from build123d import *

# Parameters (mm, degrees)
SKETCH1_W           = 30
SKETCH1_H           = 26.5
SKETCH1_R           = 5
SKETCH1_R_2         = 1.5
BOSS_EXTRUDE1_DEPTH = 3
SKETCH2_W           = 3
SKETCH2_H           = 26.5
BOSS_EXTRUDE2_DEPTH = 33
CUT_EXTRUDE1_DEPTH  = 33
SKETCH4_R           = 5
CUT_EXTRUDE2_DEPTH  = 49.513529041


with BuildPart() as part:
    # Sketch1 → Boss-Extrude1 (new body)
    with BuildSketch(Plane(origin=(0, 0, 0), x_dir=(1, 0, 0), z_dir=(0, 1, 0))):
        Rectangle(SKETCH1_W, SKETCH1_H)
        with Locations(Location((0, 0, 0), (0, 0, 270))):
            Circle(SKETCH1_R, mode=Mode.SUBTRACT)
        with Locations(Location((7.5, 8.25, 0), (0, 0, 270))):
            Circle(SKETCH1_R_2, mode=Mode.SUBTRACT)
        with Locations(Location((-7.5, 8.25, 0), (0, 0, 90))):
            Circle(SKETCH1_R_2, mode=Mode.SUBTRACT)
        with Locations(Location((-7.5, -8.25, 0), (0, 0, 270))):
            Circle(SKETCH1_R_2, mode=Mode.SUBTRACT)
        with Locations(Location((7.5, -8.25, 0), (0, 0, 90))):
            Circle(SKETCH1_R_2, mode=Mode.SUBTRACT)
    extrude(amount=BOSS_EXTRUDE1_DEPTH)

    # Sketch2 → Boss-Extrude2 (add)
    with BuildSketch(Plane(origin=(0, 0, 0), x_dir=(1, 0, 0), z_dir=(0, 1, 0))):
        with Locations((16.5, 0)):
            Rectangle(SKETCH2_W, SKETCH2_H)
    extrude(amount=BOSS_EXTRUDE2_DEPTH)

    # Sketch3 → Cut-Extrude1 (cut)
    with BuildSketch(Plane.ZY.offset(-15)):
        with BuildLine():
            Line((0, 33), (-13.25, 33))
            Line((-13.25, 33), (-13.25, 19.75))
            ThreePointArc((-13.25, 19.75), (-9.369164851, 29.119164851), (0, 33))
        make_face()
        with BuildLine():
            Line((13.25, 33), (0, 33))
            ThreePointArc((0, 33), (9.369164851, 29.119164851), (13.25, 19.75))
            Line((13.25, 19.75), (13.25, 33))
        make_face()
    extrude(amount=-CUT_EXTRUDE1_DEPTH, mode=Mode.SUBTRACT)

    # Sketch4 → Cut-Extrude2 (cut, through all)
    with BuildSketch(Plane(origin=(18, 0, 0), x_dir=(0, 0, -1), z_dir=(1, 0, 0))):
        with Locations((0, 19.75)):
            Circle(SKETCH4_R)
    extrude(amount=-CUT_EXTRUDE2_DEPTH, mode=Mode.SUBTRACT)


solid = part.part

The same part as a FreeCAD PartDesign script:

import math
import FreeCAD as App
import Part
import Sketcher

V = App.Vector
Q = App.Units.Quantity


def add_polygon(sketch, points):
    """Adds a closed chain of lines whose ends are joined by coincident constraints."""
    first, n = sketch.GeometryCount, len(points)
    for a, b in zip(points, points[1:] + points[:1]):
        sketch.addGeometry(Part.LineSegment(App.Vector(*a, 0), App.Vector(*b, 0)), False)
    for i in range(n):
        sketch.addConstraint(Sketcher.Constraint("Coincident", first + i, 2, first + (i + 1) % n, 1))

doc = App.newDocument("Part")
body = doc.addObject("PartDesign::Body", "Body")

sketch1 = doc.addObject("Sketcher::SketchObject", "Sketch")
body.addObject(sketch1)
sketch1.AttachmentSupport = (doc.XZ_Plane, [""])
sketch1.MapMode = "FlatFace"
add_polygon(sketch1, [(-15, -13.2), (-15, 13.2), (15, 13.2), (15, -13.2)])
sketch1.addGeometry(Part.Circle(V(-7.5, 8.2, 0), V(0, 0, 1), 1.5), False)
sketch1.addGeometry(Part.Circle(V(7.5, 8.2, 0), V(0, 0, 1), 1.5), False)
sketch1.addGeometry(Part.Circle(V(-7.5, -8.2, 0), V(0, 0, 1), 1.5), False)
sketch1.addGeometry(Part.Circle(V(0, 0, 0), V(0, 0, 1), 5), False)
sketch1.addGeometry(Part.Circle(V(7.5, -8.2, 0), V(0, 0, 1), 1.5), False)
sketch1.addConstraint(Sketcher.Constraint("Vertical", 0))
sketch1.addConstraint(Sketcher.Constraint("Horizontal", 1))
sketch1.addConstraint(Sketcher.Constraint("Vertical", 2))
sketch1.addConstraint(Sketcher.Constraint("Horizontal", 3))
sketch1.addConstraint(Sketcher.Constraint("Coincident", 7, 3, -1, 1))
sketch1.addConstraint(Sketcher.Constraint("Equal", 4, 5))
sketch1.addConstraint(Sketcher.Constraint("Equal", 5, 6))
sketch1.addConstraint(Sketcher.Constraint("Equal", 6, 8))
sketch1.addConstraint(Sketcher.Constraint("Symmetric", 5, 3, 6, 3, -1, 1))
sketch1.addConstraint(Sketcher.Constraint("Symmetric", 4, 3, 8, 3, -1, 1))
sketch1.addConstraint(Sketcher.Constraint("Symmetric", 0, 2, 2, 2, -1, 1))
sketch1.addConstraint(Sketcher.Constraint("Symmetric", 4, 3, 5, 3, -2))
sketch1.addConstraint(Sketcher.Constraint("Diameter", 4, Q("3 mm")))
sketch1.addConstraint(Sketcher.Constraint("Diameter", 7, Q("10 mm")))
sketch1.addConstraint(Sketcher.Constraint("DistanceX", 1, 1, 1, 2, Q("30 mm")))
sketch1.addConstraint(Sketcher.Constraint("DistanceY", 0, 1, 0, 2, Q("26.5 mm")))
sketch1.addConstraint(Sketcher.Constraint("DistanceX", 4, 3, 5, 3, Q("15 mm")))
sketch1.addConstraint(Sketcher.Constraint("DistanceY", 4, 3, 0, 2, Q("5 mm")))
pad1 = doc.addObject("PartDesign::Pad", "Pad")
body.addObject(pad1)
pad1.Profile = sketch1
pad1.Length = 3
pad1.Reversed = True

sketch2 = doc.addObject("Sketcher::SketchObject", "Sketch001")
body.addObject(sketch2)
sketch2.AttachmentSupport = (doc.XZ_Plane, [""])
sketch2.MapMode = "FlatFace"
add_polygon(sketch2, [(15, -13.2), (15, 13.2), (18, 13.2), (18, -13.2)])
sketch2.addConstraint(Sketcher.Constraint("Vertical", 0))
sketch2.addConstraint(Sketcher.Constraint("Horizontal", 1))
sketch2.addConstraint(Sketcher.Constraint("Vertical", 2))
sketch2.addConstraint(Sketcher.Constraint("Horizontal", 3))
sketch2.addConstraint(Sketcher.Constraint("DistanceX", 1, 1, 1, 2, Q("3 mm")))
sketch2.addConstraint(Sketcher.Constraint("DistanceY", 0, 1, 0, 2, Q("26.5 mm")))
sketch2.addConstraint(Sketcher.Constraint("DistanceX", -1, 1, 0, 2, Q("15 mm")))
sketch2.addConstraint(Sketcher.Constraint("DistanceY", -1, 1, 0, 2, Q("13.25 mm")))
pad2 = doc.addObject("PartDesign::Pad", "Pad001")
body.addObject(pad2)
pad2.Profile = sketch2
pad2.Length = 33
pad2.Reversed = True

sketch3 = doc.addObject("Sketcher::SketchObject", "Sketch002")
body.addObject(sketch3)
sketch3.AttachmentSupport = (doc.YZ_Plane, [""])
sketch3.MapMode = "FlatFace"
sketch3.AttachmentOffset = App.Placement(V(0, 0, 15), App.Rotation())
sketch3.addGeometry(Part.LineSegment(V(33, 0, 0), V(33, -13, 0)), False)
sketch3.addGeometry(Part.LineSegment(V(33, -13, 0), V(20, -13, 0)), False)
sketch3.addGeometry(Part.ArcOfCircle(Part.Circle(V(20, 0, 0), V(0, 0, 1), 13), math.radians(-90), math.radians(0)), False)
sketch3.addGeometry(Part.LineSegment(V(33, 13, 0), V(33, 0, 0)), False)
sketch3.addGeometry(Part.ArcOfCircle(Part.Circle(V(20, 0, 0), V(0, 0, 1), 13), math.radians(0), math.radians(90)), False)
sketch3.addGeometry(Part.LineSegment(V(20, 13, 0), V(33, 13, 0)), False)
sketch3.addConstraint(Sketcher.Constraint("Coincident", 0, 2, 1, 1))
sketch3.addConstraint(Sketcher.Constraint("Tangent", 1, 2, 2, 1))
sketch3.addConstraint(Sketcher.Constraint("Tangent", 2, 2, 0, 1))
sketch3.addConstraint(Sketcher.Constraint("Tangent", 3, 2, 4, 1))
sketch3.addConstraint(Sketcher.Constraint("Tangent", 4, 2, 5, 1))
sketch3.addConstraint(Sketcher.Constraint("Coincident", 5, 2, 3, 1))
sketch3.addConstraint(Sketcher.Constraint("Vertical", 0))
sketch3.addConstraint(Sketcher.Constraint("Horizontal", 1))
sketch3.addConstraint(Sketcher.Constraint("Vertical", 3))
sketch3.addConstraint(Sketcher.Constraint("Horizontal", 5))
sketch3.addConstraint(Sketcher.Constraint("Coincident", 4, 3, 2, 3))
sketch3.addConstraint(Sketcher.Constraint("Equal", 2, 4))
sketch3.addConstraint(Sketcher.Constraint("PointOnObject", 2, 3, -1))
sketch3.addConstraint(Sketcher.Constraint("Radius", 2, Q("13.25 mm")))
sketch3.addConstraint(Sketcher.Constraint("DistanceX", -1, 1, 0, 2, Q("33 mm")))
pocket1 = doc.addObject("PartDesign::Pocket", "Pocket")
body.addObject(pocket1)
pocket1.Profile = sketch3
pocket1.Length = 33
pocket1.Reversed = True

sketch4 = doc.addObject("Sketcher::SketchObject", "Sketch003")
body.addObject(sketch4)
sketch4.AttachmentSupport = (doc.YZ_Plane, [""])
sketch4.MapMode = "FlatFace"
sketch4.AttachmentOffset = App.Placement(V(0, 0, 18), App.Rotation())
sketch4.addGeometry(Part.Circle(V(20, 0, 0), V(0, 0, 1), 5), False)
sketch4.addConstraint(Sketcher.Constraint("PointOnObject", 0, 3, -1))
sketch4.addConstraint(Sketcher.Constraint("Diameter", 0, Q("10 mm")))
sketch4.addConstraint(Sketcher.Constraint("DistanceX", -1, 1, 0, 3, Q("19.75 mm")))
pocket2 = doc.addObject("PartDesign::Pocket", "Pocket001")
body.addObject(pocket2)
pocket2.Profile = sketch4
pocket2.Type = "ThroughAll"

doc.recompute()
